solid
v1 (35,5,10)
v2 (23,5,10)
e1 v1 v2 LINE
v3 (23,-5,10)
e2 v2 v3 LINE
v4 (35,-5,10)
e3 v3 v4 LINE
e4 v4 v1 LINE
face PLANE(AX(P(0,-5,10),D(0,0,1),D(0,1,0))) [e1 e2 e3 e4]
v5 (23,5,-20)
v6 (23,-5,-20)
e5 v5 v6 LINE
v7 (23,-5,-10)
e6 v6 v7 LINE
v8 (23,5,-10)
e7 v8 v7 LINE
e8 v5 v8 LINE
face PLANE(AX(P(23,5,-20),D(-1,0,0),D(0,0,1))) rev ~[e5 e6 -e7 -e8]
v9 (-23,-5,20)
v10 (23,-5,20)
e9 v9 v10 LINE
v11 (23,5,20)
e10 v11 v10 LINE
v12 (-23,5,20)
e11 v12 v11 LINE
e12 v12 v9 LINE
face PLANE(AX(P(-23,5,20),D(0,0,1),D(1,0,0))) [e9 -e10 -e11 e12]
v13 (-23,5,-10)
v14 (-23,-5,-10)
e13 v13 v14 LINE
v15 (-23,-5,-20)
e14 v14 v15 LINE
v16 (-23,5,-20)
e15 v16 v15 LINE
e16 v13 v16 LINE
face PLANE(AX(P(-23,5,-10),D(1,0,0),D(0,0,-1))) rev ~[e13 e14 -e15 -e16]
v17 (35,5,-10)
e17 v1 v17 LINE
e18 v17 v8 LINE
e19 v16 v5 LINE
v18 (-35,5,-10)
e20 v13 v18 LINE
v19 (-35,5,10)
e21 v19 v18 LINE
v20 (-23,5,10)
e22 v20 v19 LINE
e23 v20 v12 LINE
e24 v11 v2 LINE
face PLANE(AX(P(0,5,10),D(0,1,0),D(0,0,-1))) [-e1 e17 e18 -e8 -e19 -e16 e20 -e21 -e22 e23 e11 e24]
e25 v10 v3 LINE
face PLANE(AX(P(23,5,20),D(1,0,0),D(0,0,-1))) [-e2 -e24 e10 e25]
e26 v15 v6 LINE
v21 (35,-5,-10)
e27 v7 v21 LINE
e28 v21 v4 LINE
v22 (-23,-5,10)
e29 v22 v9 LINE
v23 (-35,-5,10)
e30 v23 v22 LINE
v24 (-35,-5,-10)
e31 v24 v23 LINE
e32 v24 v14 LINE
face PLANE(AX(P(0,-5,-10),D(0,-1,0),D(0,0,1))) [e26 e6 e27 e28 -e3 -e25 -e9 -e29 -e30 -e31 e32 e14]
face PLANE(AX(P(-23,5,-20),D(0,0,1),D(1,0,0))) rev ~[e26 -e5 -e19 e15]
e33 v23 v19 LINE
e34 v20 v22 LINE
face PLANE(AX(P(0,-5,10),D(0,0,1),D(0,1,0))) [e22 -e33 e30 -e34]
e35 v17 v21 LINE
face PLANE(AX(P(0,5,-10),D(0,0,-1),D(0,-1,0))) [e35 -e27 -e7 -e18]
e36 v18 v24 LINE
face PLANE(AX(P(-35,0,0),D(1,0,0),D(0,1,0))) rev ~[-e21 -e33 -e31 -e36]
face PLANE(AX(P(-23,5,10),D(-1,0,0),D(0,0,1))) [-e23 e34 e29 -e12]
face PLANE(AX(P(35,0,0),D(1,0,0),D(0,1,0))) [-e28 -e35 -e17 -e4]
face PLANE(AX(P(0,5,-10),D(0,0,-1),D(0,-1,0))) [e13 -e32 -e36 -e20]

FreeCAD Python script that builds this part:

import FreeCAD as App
import Part
import Sketcher
from FreeCAD import Vector


def add_polygon(sketch, points):
    """Adds a closed chain of lines whose ends are joined by coincident constraints."""
    first, n = sketch.GeometryCount, len(points)
    for a, b in zip(points, points[1:] + points[:1]):
        sketch.addGeometry(Part.LineSegment(App.Vector(*a, 0), App.Vector(*b, 0)), False)
    for i in range(n):
        sketch.addConstraint(Sketcher.Constraint("Coincident", first + i, 2, first + (i + 1) % n, 1))

doc = App.newDocument("Part")
body = doc.addObject("PartDesign::Body", "Body")

sketch1 = doc.addObject("Sketcher::SketchObject", "Sketch")
body.addObject(sketch1)
sketch1.AttachmentSupport = (doc.YZ_Plane, [""])
sketch1.MapMode = "FlatFace"
add_polygon(sketch1, [(5, 10), (-5, 10), (-5, -10), (5, -10)])
sketch1.addConstraint(Sketcher.Constraint("Horizontal", 0))
sketch1.addConstraint(Sketcher.Constraint("Vertical", 1))
sketch1.addConstraint(Sketcher.Constraint("Horizontal", 2))
sketch1.addConstraint(Sketcher.Constraint("Vertical", 3))
sketch1.addConstraint(Sketcher.Constraint("Symmetric", 0, 2, 2, 2, -1, 1))
sketch1.addConstraint(Sketcher.Constraint("DistanceX", 0, 2, 0, 1, 10.0))
sketch1.addConstraint(Sketcher.Constraint("DistanceY", 1, 2, 1, 1, 20.0))
pad1 = doc.addObject("PartDesign::Pad", "Pad")
body.addObject(pad1)
pad1.Profile = sketch1
pad1.Length = 70
pad1.Midplane = True

sketch2 = doc.addObject("Sketcher::SketchObject", "Sketch001")
body.addObject(sketch2)
sketch2.AttachmentSupport = (doc.XZ_Plane, [""])
sketch2.MapMode = "FlatFace"
sketch2.AttachmentOffset = App.Placement(Vector(0, 0, -5), App.Rotation())
add_polygon(sketch2, [(-23, -10), (23, -10), (23, -20), (-23, -20)])
add_polygon(sketch2, [(23, 20), (23, 10), (-23, 10), (-23, 20)])
sketch2.addConstraint(Sketcher.Constraint("Horizontal", 0))
sketch2.addConstraint(Sketcher.Constraint("Vertical", 1))
sketch2.addConstraint(Sketcher.Constraint("Horizontal", 2))
sketch2.addConstraint(Sketcher.Constraint("Vertical", 3))
sketch2.addConstraint(Sketcher.Constraint("Vertical", 4))
sketch2.addConstraint(Sketcher.Constraint("Horizontal", 5))
sketch2.addConstraint(Sketcher.Constraint("Vertical", 6))
sketch2.addConstraint(Sketcher.Constraint("Horizontal", 7))
sketch2.addConstraint(Sketcher.Constraint("Symmetric", 3, 2, 4, 2, -1, 1))
sketch2.addConstraint(Sketcher.Constraint("Symmetric", 1, 2, 6, 2, -1, 1))
sketch2.addConstraint(Sketcher.Constraint("Vertical", 1, 2, 4, 2))
sketch2.addConstraint(Sketcher.Constraint("DistanceX", 0, 1, 0, 2, 46.0))
sketch2.addConstraint(Sketcher.Constraint("DistanceY", 1, 2, 1, 1, 10.0))
sketch2.addConstraint(Sketcher.Constraint("DistanceY", 0, 2, -1, 1, 10.0))
pad2 = doc.addObject("PartDesign::Pad", "Pad001")
body.addObject(pad2)
pad2.Profile = sketch2
pad2.Length = 10

doc.recompute()
